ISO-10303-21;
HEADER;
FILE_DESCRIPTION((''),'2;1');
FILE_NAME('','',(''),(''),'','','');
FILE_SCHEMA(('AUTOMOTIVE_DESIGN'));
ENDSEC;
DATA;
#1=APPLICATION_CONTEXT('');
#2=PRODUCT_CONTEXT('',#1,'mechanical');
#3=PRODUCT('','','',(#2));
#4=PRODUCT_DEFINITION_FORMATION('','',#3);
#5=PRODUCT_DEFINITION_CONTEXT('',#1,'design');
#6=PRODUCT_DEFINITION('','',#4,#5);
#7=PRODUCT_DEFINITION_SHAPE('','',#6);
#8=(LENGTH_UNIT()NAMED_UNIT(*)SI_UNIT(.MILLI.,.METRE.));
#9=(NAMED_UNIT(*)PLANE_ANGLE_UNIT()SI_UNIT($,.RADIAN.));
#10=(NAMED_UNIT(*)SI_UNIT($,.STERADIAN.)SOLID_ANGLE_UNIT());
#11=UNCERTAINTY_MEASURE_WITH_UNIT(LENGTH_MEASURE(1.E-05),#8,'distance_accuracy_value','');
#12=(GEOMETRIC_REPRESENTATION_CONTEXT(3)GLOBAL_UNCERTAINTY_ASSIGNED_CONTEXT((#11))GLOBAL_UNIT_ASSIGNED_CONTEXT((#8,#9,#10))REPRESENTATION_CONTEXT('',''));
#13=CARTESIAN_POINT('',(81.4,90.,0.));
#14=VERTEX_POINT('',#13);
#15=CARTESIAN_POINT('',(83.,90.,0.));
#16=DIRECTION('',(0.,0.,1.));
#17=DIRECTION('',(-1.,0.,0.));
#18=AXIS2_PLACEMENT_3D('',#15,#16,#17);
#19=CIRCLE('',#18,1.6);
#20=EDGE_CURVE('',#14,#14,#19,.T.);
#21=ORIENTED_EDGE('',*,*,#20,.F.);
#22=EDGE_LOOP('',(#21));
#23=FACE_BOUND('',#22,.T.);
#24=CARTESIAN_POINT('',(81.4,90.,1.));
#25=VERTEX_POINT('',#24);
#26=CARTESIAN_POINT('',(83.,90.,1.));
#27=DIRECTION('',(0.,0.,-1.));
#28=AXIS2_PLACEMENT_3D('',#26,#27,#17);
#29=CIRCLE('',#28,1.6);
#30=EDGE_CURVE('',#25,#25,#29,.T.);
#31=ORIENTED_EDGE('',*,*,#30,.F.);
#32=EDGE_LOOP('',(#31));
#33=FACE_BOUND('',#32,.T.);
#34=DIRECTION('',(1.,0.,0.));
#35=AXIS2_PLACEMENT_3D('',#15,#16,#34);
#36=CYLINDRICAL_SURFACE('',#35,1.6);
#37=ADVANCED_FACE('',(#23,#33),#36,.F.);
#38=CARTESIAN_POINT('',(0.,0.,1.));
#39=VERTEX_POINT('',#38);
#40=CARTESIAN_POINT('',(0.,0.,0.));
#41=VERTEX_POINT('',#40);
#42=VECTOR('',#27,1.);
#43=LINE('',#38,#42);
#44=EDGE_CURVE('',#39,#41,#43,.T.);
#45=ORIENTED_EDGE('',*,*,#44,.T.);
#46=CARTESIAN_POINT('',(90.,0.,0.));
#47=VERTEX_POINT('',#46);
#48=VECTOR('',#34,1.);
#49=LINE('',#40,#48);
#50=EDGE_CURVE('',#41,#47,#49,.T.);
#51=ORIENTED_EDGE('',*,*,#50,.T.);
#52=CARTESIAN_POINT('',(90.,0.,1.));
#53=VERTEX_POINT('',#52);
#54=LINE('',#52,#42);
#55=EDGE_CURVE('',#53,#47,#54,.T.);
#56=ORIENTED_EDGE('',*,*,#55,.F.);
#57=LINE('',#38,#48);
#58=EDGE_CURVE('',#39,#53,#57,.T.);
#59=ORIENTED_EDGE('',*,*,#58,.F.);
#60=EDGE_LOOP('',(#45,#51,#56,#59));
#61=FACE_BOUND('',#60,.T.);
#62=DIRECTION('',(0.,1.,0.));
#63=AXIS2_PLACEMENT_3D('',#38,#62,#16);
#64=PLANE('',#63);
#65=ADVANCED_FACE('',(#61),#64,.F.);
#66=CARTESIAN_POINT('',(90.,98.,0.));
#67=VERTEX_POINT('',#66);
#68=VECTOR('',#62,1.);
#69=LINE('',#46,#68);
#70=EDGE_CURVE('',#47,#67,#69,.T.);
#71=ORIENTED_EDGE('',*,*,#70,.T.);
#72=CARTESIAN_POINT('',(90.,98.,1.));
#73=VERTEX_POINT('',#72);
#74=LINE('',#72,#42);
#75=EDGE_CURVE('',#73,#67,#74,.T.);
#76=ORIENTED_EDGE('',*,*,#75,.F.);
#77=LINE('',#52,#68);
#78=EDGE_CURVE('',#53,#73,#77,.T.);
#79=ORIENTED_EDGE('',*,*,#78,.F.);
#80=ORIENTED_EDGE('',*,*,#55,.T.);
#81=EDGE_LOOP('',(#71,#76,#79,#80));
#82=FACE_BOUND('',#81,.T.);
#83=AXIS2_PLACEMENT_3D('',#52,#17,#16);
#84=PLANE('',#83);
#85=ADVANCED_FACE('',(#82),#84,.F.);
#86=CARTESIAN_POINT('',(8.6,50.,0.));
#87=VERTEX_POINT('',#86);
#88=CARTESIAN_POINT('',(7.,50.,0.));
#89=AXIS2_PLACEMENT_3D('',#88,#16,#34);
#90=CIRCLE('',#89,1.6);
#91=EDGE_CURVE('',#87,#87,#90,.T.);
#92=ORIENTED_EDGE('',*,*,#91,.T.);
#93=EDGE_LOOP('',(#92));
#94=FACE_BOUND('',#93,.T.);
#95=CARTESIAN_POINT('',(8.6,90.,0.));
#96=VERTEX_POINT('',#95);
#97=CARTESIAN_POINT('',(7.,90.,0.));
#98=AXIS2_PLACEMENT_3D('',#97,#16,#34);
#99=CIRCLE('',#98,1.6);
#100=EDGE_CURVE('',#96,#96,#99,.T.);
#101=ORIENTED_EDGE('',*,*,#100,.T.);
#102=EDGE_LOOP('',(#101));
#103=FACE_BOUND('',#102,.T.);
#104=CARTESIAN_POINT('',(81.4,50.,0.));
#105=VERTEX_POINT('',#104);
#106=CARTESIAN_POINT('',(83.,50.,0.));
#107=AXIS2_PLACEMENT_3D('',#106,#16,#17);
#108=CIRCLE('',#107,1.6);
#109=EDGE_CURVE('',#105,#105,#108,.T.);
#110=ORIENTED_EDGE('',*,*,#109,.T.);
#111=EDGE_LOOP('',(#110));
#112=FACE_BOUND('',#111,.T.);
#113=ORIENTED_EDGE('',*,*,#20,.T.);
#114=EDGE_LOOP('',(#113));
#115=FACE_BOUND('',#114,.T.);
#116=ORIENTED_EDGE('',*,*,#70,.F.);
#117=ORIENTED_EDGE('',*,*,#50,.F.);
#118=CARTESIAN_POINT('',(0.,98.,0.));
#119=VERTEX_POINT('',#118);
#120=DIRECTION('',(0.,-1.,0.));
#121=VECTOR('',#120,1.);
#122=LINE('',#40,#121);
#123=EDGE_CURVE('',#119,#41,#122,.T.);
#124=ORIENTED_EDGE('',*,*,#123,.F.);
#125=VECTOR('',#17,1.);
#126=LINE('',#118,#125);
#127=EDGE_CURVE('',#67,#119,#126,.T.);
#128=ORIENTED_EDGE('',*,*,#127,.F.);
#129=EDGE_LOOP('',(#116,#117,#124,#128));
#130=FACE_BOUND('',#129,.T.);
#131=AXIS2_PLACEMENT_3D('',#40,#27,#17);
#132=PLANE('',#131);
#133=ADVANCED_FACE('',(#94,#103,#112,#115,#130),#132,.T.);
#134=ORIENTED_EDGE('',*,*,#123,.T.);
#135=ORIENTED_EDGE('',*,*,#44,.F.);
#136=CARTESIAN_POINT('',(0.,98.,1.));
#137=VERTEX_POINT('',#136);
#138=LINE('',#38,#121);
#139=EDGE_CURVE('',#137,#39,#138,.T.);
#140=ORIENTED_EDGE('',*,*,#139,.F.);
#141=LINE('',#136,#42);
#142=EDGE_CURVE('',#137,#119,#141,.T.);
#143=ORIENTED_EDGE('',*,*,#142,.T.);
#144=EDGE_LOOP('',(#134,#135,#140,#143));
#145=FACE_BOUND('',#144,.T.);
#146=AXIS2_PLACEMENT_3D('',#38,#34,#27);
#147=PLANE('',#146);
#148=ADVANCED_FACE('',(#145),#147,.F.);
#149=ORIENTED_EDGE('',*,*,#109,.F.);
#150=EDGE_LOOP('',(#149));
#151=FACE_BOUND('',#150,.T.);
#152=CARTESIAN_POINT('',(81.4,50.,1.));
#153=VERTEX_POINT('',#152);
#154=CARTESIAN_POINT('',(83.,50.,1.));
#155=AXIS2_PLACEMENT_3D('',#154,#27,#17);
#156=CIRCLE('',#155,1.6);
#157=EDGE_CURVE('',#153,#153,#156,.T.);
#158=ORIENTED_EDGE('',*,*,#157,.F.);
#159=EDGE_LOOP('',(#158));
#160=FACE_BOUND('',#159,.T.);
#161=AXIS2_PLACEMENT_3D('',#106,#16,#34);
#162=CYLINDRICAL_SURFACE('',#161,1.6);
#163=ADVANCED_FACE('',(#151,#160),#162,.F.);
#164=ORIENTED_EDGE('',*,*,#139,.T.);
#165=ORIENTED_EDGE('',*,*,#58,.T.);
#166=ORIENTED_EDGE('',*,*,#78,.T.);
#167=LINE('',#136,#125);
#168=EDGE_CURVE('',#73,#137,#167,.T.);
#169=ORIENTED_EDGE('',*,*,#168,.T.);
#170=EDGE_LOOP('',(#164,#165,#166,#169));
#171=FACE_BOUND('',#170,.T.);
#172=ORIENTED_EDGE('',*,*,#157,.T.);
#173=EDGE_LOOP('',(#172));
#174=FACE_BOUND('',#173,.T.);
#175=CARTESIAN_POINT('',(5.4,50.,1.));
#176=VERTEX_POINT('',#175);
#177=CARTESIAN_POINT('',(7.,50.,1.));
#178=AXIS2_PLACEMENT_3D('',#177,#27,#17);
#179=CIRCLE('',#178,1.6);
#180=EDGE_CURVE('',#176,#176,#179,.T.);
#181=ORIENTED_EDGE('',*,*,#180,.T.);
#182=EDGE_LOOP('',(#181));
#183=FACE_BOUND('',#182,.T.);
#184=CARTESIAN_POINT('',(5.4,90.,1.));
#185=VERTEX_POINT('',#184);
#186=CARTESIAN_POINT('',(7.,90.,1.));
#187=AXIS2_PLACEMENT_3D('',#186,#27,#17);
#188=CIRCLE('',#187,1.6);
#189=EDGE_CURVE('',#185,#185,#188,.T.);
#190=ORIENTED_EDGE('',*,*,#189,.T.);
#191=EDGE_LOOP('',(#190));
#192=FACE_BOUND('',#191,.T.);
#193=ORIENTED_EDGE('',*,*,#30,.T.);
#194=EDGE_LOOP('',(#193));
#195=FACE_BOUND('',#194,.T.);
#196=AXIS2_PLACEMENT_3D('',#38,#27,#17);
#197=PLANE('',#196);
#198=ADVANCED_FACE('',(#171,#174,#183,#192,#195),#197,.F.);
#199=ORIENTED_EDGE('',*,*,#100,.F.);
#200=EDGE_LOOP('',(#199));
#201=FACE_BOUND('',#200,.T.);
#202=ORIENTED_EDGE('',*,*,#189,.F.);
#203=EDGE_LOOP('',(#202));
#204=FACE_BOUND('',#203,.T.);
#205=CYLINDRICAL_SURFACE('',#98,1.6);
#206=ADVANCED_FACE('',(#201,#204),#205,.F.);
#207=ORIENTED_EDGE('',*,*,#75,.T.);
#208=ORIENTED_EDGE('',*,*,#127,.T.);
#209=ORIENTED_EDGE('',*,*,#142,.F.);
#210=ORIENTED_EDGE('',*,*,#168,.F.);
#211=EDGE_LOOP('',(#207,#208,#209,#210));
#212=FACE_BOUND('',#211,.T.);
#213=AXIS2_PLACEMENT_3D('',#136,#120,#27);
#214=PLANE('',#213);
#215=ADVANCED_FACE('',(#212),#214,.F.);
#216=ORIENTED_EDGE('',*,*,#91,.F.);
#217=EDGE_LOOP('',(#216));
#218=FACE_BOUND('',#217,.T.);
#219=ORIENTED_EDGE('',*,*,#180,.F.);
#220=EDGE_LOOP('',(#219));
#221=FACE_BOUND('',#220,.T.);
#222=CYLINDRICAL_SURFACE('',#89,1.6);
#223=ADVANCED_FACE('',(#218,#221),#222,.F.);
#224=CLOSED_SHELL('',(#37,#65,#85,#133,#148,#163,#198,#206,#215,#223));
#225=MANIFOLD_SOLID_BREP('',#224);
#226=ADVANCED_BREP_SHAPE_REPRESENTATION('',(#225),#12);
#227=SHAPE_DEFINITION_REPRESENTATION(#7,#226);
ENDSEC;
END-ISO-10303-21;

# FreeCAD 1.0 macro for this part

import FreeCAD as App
import Part
import Sketcher
from FreeCAD import Vector


def add_polygon(sketch, points):
    """Adds a closed chain of lines whose ends are joined by coincident constraints."""
    first, n = sketch.GeometryCount, len(points)
    for a, b in zip(points, points[1:] + points[:1]):
        sketch.addGeometry(Part.LineSegment(App.Vector(*a, 0), App.Vector(*b, 0)), False)
    for i in range(n):
        sketch.addConstraint(Sketcher.Constraint("Coincident", first + i, 2, first + (i + 1) % n, 1))

doc = App.newDocument("Part")
body = doc.addObject("PartDesign::Body", "Body")

sketch1 = doc.addObject("Sketcher::SketchObject", "Sketch")
body.addObject(sketch1)
sketch1.AttachmentSupport = (doc.XY_Plane, [""])
sketch1.MapMode = "FlatFace"
add_polygon(sketch1, [(0, 98), (0, 0), (90, 0), (90, 98)])
sketch1.addConstraint([
    Sketcher.Constraint("Vertical", 0),
    Sketcher.Constraint("Horizontal", 1),
    Sketcher.Constraint("Vertical", 2),
    Sketcher.Constraint("Horizontal", 3),
    Sketcher.Constraint("Coincident", 0, 2, -1, 1),
    Sketcher.Constraint("DistanceX", 1, 1, 1, 2, 90.0),
    Sketcher.Constraint("DistanceY", 0, 2, 0, 1, 98.0),
])
pad1 = doc.addObject("PartDesign::Pad", "Pad")
body.addObject(pad1)
pad1.Profile = sketch1
pad1.Length = 1

sketch2 = doc.addObject("Sketcher::SketchObject", "Sketch001")
body.addObject(sketch2)
sketch2.AttachmentSupport = (doc.XY_Plane, [""])
sketch2.MapMode = "FlatFace"
sketch2.AttachmentOffset = App.Placement(Vector(0, 0, 1), App.Rotation())
sketch2.addGeometry([
    Part.Circle(Vector(7, 50, 0), Vector(0, 0, 1), 1.6),
    Part.Circle(Vector(7, 90, 0), Vector(0, 0, 1), 1.6),
    Part.Circle(Vector(83, 90, 0), Vector(0, 0, 1), 1.6),
    Part.Circle(Vector(83, 50, 0), Vector(0, 0, 1), 1.6),
], False)
sketch2.addConstraint([
    Sketcher.Constraint("Equal", 0, 1),
    Sketcher.Constraint("Equal", 1, 2),
    Sketcher.Constraint("Equal", 2, 3),
    Sketcher.Constraint("Horizontal", 1, 3, 2, 3),
    Sketcher.Constraint("Horizontal", 0, 3, 3, 3),
    Sketcher.Constraint("Vertical", 0, 3, 1, 3),
    Sketcher.Constraint("Vertical", 2, 3, 3, 3),
    Sketcher.Constraint("Diameter", 0, 3.2),
    Sketcher.Constraint("DistanceX", -1, 1, 0, 3, 7.0),
    Sketcher.Constraint("DistanceY", -1, 1, 0, 3, 50.0),
    Sketcher.Constraint("DistanceY", -1, 1, 1, 3, 90.0),
    Sketcher.Constraint("DistanceX", -1, 1, 2, 3, 83.0),
])
pocket1 = doc.addObject("PartDesign::Pocket", "Pocket")
body.addObject(pocket1)
pocket1.Profile = sketch2
pocket1.Type = "ThroughAll"
pocket1.Midplane = True

doc.recompute()
